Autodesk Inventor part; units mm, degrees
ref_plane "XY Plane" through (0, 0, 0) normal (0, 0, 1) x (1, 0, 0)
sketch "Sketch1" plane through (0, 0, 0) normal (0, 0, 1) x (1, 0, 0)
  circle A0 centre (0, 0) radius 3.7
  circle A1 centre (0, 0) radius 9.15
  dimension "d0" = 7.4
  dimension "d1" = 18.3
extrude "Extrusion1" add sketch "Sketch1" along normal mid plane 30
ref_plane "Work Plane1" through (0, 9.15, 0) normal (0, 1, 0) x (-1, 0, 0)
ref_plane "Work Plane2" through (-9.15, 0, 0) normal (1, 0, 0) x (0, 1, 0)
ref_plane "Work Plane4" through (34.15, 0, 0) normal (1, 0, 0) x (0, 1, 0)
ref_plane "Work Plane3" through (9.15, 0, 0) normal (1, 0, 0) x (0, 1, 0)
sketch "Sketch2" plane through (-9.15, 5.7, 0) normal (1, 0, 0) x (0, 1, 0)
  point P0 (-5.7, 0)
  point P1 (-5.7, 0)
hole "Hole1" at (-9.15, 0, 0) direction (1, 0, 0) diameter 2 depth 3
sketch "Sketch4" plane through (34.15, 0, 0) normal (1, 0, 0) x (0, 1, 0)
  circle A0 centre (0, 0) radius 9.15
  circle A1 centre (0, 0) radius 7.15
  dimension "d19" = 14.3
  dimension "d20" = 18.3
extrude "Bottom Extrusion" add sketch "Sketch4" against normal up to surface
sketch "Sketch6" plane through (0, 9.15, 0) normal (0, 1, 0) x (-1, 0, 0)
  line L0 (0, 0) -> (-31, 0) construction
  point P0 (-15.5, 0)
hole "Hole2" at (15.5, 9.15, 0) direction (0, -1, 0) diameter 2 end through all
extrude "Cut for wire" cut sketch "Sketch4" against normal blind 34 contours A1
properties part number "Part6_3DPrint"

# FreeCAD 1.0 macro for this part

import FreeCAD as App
import Part
import Sketcher

V = App.Vector

doc = App.newDocument("Part")
body = doc.addObject("PartDesign::Body", "Body")

# Sketch on XY plane
sketch1 = body.newObject("Sketcher::SketchObject", "Sketch")
sketch1.AttachmentSupport = (doc.getObject("XY_Plane"), [""])
sketch1.MapMode = "FlatFace"
sketch1.addGeometry(Part.Circle(V(0, 0, 0), V(0, 0, 1), 9.15), False)
sketch1.addGeometry(Part.Circle(V(0, 0, 0), V(0, 0, 1), 3.7), False)
sketch1.addConstraint(Sketcher.Constraint("Coincident", 0, 3, -1, 1))
sketch1.addConstraint(Sketcher.Constraint("Coincident", 1, 3, -1, 1))
sketch1.addConstraint(Sketcher.Constraint("Diameter", 0, 18.3))
sketch1.addConstraint(Sketcher.Constraint("Diameter", 1, 7.4))
pad1 = body.newObject("PartDesign::Pad", "Pad")
pad1.Profile = sketch1
pad1.Length = 30
pad1.Midplane = True

# Sketch on YZ plane
sketch2 = body.newObject("Sketcher::SketchObject", "Sketch001")
sketch2.AttachmentSupport = (doc.getObject("YZ_Plane"), [""])
sketch2.MapMode = "FlatFace"
sketch2.AttachmentOffset = App.Placement(V(0, 0, -9.15), App.Rotation())
sketch2.addGeometry(Part.Circle(V(0, 0, 0), V(0, 0, 1), 1), False)
sketch2.addConstraint(Sketcher.Constraint("Coincident", 0, 3, -1, 1))
sketch2.addConstraint(Sketcher.Constraint("Diameter", 0, 2.0))
doc.recompute()
hole = body.newObject("PartDesign::Hole", "Hole")
hole.Profile = sketch2
hole.ThreadType = "None"
hole.Diameter = 2
hole.DepthType = "Dimension"
hole.Depth = 3
hole.DrillPoint = "Flat"
hole.Reversed = True

# Sketch on YZ plane
sketch3 = body.newObject("Sketcher::SketchObject", "Sketch002")
sketch3.AttachmentSupport = (doc.getObject("YZ_Plane"), [""])
sketch3.MapMode = "FlatFace"
sketch3.AttachmentOffset = App.Placement(V(0, 0, 34.15), App.Rotation())
sketch3.addGeometry(Part.Circle(V(0, 0, 0), V(0, 0, 1), 9.15), False)
sketch3.addGeometry(Part.Circle(V(0, 0, 0), V(0, 0, 1), 7.15), False)
sketch3.addConstraint(Sketcher.Constraint("Coincident", 0, 3, -1, 1))
sketch3.addConstraint(Sketcher.Constraint("Coincident", 1, 3, -1, 1))
sketch3.addConstraint(Sketcher.Constraint("Diameter", 0, 18.3))
sketch3.addConstraint(Sketcher.Constraint("Diameter", 1, 14.3))
pad2 = body.newObject("PartDesign::Pad", "Pad001")
pad2.Profile = sketch3
pad2.Type = "UpToFirst"
pad2.Reversed = True

# Sketch on XZ plane
sketch4 = body.newObject("Sketcher::SketchObject", "Sketch003")
sketch4.AttachmentSupport = (doc.getObject("XZ_Plane"), [""])
sketch4.MapMode = "FlatFace"
sketch4.AttachmentOffset = App.Placement(V(0, 0, -9.15), App.Rotation())
sketch4.addGeometry(Part.Circle(V(15.5, 0, 0), V(0, 0, 1), 1), False)
sketch4.addConstraint(Sketcher.Constraint("PointOnObject", 0, 3, -1))
sketch4.addConstraint(Sketcher.Constraint("Diameter", 0, 2.0))
sketch4.addConstraint(Sketcher.Constraint("DistanceX", -1, 1, 0, 3, 15.5))
doc.recompute()
hole2 = body.newObject("PartDesign::Hole", "Hole001")
hole2.Profile = sketch4
hole2.ThreadType = "None"
hole2.Diameter = 2
hole2.DepthType = "ThroughAll"
hole2.Reversed = True

# Sketch on YZ plane
sketch5 = body.newObject("Sketcher::SketchObject", "Sketch004")
sketch5.AttachmentSupport = (doc.getObject("YZ_Plane"), [""])
sketch5.MapMode = "FlatFace"
sketch5.AttachmentOffset = App.Placement(V(0, 0, 34.15), App.Rotation())
sketch5.addGeometry(Part.Circle(V(0, 0, 0), V(0, 0, 1), 7.15), False)
sketch5.addConstraint(Sketcher.Constraint("Coincident", 0, 3, -1, 1))
sketch5.addConstraint(Sketcher.Constraint("Diameter", 0, 14.3))
pocket1 = body.newObject("PartDesign::Pocket", "Pocket")
pocket1.Profile = sketch5
pocket1.Length = 34

doc.recompute()
